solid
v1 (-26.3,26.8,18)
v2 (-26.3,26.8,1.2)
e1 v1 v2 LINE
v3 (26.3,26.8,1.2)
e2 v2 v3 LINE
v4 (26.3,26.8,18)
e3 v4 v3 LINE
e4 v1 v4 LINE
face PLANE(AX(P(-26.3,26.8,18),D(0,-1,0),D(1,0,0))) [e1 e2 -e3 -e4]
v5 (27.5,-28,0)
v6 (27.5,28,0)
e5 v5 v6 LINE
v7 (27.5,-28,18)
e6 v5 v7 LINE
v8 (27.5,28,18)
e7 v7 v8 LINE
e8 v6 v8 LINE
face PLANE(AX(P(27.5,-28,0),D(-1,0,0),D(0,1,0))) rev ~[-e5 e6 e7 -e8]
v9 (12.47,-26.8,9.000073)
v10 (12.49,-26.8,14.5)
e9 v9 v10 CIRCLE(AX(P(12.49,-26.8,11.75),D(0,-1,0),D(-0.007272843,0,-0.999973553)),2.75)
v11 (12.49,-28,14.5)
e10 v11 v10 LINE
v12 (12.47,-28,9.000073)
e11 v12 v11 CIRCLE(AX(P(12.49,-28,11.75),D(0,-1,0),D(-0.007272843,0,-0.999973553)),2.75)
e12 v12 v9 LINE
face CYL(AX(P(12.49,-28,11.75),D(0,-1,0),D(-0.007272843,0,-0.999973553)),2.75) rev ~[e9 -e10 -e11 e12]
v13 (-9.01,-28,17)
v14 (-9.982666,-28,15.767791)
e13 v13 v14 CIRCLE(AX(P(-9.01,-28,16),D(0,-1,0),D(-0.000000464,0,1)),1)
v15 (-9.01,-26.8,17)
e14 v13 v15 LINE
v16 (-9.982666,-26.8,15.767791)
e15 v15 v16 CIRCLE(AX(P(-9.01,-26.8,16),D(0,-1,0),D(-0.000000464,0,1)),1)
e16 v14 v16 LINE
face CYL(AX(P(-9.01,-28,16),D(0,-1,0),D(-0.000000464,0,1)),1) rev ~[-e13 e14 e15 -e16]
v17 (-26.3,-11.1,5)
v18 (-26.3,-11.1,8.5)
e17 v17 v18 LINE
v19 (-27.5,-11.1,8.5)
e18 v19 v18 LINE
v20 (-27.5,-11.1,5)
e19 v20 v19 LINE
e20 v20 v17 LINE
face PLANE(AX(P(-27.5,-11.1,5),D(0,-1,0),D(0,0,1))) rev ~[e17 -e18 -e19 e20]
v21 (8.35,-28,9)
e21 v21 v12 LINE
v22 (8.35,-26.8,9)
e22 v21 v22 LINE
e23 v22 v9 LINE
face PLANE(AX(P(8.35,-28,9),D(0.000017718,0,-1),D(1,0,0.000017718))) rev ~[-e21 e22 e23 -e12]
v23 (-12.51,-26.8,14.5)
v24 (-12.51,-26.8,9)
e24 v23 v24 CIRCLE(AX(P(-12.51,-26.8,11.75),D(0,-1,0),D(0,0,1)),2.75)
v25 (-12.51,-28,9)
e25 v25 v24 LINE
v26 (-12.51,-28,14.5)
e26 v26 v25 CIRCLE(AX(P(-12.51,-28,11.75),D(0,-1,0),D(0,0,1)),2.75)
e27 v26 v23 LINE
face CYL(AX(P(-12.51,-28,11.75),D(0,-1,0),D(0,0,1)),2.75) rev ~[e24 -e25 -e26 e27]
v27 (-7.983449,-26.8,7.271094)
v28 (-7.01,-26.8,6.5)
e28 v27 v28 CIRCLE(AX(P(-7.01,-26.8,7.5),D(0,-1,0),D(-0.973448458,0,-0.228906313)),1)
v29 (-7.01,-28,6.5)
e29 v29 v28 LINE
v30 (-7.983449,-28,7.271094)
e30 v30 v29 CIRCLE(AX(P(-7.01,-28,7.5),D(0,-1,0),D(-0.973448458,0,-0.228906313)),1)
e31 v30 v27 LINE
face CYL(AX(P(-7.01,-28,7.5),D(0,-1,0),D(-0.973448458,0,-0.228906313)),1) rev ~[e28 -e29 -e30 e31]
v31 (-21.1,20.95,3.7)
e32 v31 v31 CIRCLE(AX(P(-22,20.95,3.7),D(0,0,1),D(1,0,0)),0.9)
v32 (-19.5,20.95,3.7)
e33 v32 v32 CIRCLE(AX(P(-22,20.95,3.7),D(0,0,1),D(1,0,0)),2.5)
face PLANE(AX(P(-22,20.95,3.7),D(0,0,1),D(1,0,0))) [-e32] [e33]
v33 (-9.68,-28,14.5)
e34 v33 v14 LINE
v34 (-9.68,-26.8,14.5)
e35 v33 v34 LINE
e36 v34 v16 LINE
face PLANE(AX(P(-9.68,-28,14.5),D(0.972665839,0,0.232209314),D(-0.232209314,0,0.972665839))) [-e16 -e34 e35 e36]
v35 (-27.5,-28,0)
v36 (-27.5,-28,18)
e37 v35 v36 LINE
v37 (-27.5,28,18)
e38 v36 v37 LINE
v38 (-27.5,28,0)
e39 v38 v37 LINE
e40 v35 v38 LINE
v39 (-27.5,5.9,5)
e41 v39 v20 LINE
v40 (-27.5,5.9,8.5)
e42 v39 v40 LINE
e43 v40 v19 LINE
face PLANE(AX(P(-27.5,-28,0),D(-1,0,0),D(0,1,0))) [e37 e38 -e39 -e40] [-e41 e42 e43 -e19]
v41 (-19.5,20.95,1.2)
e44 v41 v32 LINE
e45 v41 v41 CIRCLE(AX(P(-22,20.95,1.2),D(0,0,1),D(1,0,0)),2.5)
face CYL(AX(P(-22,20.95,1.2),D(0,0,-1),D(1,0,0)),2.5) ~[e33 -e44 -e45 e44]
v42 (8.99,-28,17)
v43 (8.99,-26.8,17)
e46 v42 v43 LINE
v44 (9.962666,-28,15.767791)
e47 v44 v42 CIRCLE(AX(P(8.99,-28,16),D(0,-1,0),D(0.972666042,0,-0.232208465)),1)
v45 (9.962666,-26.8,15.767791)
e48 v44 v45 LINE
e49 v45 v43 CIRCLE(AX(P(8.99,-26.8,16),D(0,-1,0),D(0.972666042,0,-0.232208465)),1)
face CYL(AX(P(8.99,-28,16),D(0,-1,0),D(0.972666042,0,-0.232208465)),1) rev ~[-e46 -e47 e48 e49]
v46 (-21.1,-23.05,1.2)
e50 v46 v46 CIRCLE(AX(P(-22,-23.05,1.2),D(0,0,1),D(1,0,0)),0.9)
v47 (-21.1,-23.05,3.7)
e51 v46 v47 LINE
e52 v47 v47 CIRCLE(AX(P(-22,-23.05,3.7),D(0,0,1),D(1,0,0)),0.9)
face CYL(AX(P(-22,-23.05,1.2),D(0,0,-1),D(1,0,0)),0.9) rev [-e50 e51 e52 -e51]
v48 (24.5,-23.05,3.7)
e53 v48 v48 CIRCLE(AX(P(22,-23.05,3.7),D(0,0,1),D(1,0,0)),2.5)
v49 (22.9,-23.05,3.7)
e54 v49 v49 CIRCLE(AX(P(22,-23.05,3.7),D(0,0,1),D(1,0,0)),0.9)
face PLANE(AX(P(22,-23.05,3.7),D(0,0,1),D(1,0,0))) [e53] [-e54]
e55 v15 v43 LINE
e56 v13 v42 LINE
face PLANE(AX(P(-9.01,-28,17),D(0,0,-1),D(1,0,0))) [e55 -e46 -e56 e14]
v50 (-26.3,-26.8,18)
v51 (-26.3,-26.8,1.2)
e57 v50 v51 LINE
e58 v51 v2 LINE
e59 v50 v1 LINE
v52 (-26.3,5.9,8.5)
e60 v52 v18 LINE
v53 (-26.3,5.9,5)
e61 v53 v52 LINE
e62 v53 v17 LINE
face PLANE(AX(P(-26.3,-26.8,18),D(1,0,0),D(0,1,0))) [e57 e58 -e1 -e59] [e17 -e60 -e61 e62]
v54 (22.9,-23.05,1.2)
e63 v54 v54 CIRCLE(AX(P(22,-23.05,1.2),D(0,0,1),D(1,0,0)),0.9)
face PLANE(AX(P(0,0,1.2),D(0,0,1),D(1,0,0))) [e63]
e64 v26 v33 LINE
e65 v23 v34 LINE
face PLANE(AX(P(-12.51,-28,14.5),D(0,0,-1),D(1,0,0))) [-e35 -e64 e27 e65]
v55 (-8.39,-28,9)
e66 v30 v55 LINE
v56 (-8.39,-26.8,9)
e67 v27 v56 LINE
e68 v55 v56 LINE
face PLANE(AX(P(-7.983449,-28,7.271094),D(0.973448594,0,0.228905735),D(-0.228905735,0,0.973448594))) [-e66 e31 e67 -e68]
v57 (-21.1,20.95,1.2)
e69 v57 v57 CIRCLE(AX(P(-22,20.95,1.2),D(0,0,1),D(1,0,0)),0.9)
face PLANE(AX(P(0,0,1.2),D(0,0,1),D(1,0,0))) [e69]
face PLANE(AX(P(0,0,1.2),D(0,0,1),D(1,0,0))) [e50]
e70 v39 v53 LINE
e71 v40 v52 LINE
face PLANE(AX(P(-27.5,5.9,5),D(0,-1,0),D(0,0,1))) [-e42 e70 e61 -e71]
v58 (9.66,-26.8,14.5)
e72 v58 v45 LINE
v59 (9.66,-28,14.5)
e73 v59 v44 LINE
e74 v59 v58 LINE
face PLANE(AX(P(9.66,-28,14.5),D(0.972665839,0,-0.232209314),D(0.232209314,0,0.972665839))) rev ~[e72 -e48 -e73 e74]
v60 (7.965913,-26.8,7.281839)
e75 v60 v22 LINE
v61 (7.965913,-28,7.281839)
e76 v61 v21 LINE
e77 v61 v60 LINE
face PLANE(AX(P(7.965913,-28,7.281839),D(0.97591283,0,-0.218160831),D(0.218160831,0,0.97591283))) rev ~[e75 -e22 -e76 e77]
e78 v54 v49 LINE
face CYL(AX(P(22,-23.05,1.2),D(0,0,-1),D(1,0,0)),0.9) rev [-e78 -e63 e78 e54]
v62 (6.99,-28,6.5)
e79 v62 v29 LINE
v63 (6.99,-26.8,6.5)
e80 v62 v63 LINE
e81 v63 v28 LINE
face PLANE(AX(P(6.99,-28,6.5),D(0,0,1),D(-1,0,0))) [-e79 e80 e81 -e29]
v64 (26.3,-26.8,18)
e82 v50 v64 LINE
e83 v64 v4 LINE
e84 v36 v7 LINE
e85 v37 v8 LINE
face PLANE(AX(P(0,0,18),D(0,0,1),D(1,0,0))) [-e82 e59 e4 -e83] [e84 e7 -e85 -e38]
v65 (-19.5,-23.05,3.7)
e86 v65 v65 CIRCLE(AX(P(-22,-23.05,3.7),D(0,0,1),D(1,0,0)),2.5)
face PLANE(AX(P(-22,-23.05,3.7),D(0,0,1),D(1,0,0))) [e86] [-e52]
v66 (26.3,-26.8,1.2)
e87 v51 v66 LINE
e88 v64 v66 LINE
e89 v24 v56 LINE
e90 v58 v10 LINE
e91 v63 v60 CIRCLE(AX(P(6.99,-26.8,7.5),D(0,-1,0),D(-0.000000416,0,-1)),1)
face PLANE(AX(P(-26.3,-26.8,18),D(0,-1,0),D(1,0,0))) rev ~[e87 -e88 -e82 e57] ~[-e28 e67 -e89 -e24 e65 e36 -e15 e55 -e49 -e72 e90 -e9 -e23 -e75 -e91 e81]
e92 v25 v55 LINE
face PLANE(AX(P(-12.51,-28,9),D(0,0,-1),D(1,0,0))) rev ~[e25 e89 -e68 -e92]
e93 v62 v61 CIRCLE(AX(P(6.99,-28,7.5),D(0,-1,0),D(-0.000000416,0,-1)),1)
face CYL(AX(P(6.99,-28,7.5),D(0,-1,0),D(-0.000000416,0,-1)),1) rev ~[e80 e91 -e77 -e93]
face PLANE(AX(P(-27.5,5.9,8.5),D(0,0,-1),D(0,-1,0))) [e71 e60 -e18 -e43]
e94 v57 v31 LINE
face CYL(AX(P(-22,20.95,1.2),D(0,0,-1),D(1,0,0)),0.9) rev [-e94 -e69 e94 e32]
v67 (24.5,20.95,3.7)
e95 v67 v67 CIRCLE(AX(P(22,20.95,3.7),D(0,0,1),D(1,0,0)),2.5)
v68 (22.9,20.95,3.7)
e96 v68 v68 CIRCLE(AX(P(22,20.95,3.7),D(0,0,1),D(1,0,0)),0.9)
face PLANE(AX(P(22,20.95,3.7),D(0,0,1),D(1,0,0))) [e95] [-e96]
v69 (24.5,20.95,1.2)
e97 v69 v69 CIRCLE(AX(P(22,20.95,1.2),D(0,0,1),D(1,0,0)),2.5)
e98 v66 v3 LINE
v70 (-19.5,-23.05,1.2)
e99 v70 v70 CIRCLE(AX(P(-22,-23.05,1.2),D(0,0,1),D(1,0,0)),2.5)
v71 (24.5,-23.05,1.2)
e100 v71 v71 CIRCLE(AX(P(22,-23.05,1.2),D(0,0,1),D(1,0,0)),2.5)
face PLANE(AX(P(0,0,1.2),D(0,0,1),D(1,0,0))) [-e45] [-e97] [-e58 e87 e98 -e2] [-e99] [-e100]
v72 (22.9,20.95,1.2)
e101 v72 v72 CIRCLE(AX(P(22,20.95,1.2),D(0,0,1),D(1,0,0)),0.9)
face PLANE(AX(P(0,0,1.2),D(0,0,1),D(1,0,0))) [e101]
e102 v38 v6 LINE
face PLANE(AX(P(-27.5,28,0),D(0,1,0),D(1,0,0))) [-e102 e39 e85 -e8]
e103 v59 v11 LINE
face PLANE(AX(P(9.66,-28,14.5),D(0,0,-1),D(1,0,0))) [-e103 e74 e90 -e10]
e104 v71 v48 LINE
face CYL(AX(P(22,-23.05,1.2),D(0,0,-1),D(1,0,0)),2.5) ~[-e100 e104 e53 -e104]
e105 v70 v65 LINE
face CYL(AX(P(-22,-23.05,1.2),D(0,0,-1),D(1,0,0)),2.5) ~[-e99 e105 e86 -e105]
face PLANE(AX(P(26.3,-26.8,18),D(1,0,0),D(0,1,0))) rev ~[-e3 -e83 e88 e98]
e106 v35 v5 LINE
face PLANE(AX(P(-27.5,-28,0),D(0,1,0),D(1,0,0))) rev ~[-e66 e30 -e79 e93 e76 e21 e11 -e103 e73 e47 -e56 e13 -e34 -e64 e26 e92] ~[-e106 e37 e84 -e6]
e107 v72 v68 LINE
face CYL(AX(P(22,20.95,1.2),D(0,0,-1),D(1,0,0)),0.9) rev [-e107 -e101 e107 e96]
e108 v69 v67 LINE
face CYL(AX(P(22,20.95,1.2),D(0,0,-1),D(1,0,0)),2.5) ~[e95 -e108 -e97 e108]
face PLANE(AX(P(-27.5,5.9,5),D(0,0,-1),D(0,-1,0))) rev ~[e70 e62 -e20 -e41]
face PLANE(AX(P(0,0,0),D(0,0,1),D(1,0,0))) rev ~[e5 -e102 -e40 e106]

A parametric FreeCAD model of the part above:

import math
import FreeCAD as App
import Part
import Sketcher
from FreeCAD import Vector
Q = App.Units.Quantity


def add_polygon(sketch, points):
    """Adds a closed chain of lines whose ends are joined by coincident constraints."""
    first, n = sketch.GeometryCount, len(points)
    for a, b in zip(points, points[1:] + points[:1]):
        sketch.addGeometry(Part.LineSegment(App.Vector(*a, 0), App.Vector(*b, 0)), False)
    for i in range(n):
        sketch.addConstraint(Sketcher.Constraint("Coincident", first + i, 2, first + (i + 1) % n, 1))

doc = App.newDocument("Part")
params = doc.addObject("Spreadsheet::Sheet", "Params")
for row, (alias, value) in enumerate([
    ("sketch1_width", "55 mm"),
    ("sketch1_height", "56 mm"),
    ("pad1_length", "18 mm"),
    ("sketch2_width", "52.6 mm"),
    ("sketch2_height", "53.6 mm"),
    ("pocket1_length", "16.8 mm"),
    ("sketch3_radius", "1 mm"),
    ("sketch3_width", "18 mm"),
    ("sketch3_width2", "14 mm"),
    ("sketch3_radius2", "2.75 mm"),
    ("sketch3_width3", "2.83 mm"),
    ("pocket2_length", "1.2 mm"),
    ("sketch4_width", "17 mm"),
    ("sketch4_height", "3.5 mm"),
    ("pocket3_length", "1.2 mm"),
    ("sketch5_diameter", "5 mm"),
    ("sketch5_diameter2", "1.8 mm"),
    ("pad2_length", "2.5 mm"),
], start=1):
    params.set(f"A{row}", alias)
    params.set(f"B{row}", "=" + value)
    params.setAlias(f"B{row}", alias)

body = doc.addObject("PartDesign::Body", "Body")

# Sketch on XY plane
sketch1 = doc.addObject("Sketcher::SketchObject", "Sketch")
body.addObject(sketch1)
sketch1.AttachmentSupport = (doc.XY_Plane, [""])
sketch1.MapMode = "FlatFace"
add_polygon(sketch1, [(-28, 28), (-28, -28), (28, -28), (28, 28)])  # lines 0-3
sketch1.addConstraint([
    Sketcher.Constraint("Vertical", 0),
    Sketcher.Constraint("Horizontal", 1),
    Sketcher.Constraint("Vertical", 2),
    Sketcher.Constraint("Horizontal", 3),
    Sketcher.Constraint("Symmetric", 0, 2, 2, 2, -1, 1),
    Sketcher.Constraint("DistanceX", 1, 1, 1, 2, Q("55 mm")),
    Sketcher.Constraint("DistanceY", 0, 2, 0, 1, Q("56 mm")),
])
sketch1.setExpression("Constraints[9]", "Params.sketch1_width")
sketch1.setExpression("Constraints[10]", "Params.sketch1_height")
pad1 = doc.addObject("PartDesign::Pad", "Pad")
body.addObject(pad1)
pad1.Profile = sketch1
pad1.setExpression("Length", "Params.pad1_length")

# Sketch on XY plane
sketch2 = doc.addObject("Sketcher::SketchObject", "Sketch001")
body.addObject(sketch2)
sketch2.AttachmentSupport = (doc.XY_Plane, [""])
sketch2.MapMode = "FlatFace"
sketch2.AttachmentOffset = App.Placement(Vector(0, 0, 18), App.Rotation())
add_polygon(sketch2, [(-26, 27), (-26, -27), (26, -27), (26, 27)])  # lines 0-3
sketch2.addConstraint([
    Sketcher.Constraint("Vertical", 0),
    Sketcher.Constraint("Horizontal", 1),
    Sketcher.Constraint("Vertical", 2),
    Sketcher.Constraint("Horizontal", 3),
    Sketcher.Constraint("Symmetric", 0, 2, 2, 2, -1, 1),
    Sketcher.Constraint("DistanceX", 1, 1, 1, 2, Q("52.6 mm")),
    Sketcher.Constraint("DistanceY", 0, 2, 0, 1, Q("53.6 mm")),
])
sketch2.setExpression("Constraints[9]", "Params.sketch2_width")
sketch2.setExpression("Constraints[10]", "Params.sketch2_height")
pocket1 = doc.addObject("PartDesign::Pocket", "Pocket")
body.addObject(pocket1)
pocket1.Profile = sketch2
pocket1.setExpression("Length", "Params.pocket1_length")

# Sketch on XZ plane
sketch3 = doc.addObject("Sketcher::SketchObject", "Sketch002")
body.addObject(sketch3)
sketch3.AttachmentSupport = (doc.XZ_Plane, [""])
sketch3.MapMode = "FlatFace"
sketch3.AttachmentOffset = App.Placement(Vector(0, 0, 28), App.Rotation())
sketch3.addGeometry([
    Part.ArcOfCircle(Part.Circle(Vector(12.5, 11.8, 0), Vector(0, 0, 1), 2.7), math.radians(-90), math.radians(90)),  # 0
    Part.LineSegment(Vector(12.5, 14.5, 0), Vector(9.7, 14.5, 0)),  # 1
    Part.LineSegment(Vector(9.7, 14.5, 0), Vector(10, 15.8, 0)),  # 2
    Part.ArcOfCircle(Part.Circle(Vector(9, 16, 0), Vector(0, 0, 1), 1), math.radians(-13), math.radians(90)),  # 3
    Part.LineSegment(Vector(9, 17, 0), Vector(-9, 17, 0)),  # 4
    Part.ArcOfCircle(Part.Circle(Vector(-9, 16, 0), Vector(0, 0, 1), 1), math.radians(90), math.radians(193)),  # 5
    Part.LineSegment(Vector(-10, 15.8, 0), Vector(-9.7, 14.5, 0)),  # 6
    Part.LineSegment(Vector(-9.7, 14.5, 0), Vector(-12.5, 14.5, 0)),  # 7
    Part.ArcOfCircle(Part.Circle(Vector(-12.5, 11.8, 0), Vector(0, 0, 1), 2.8), math.radians(90), math.radians(270)),  # 8
    Part.LineSegment(Vector(-12.5, 9, 0), Vector(-8.4, 9, 0)),  # 9
    Part.LineSegment(Vector(-8.4, 9, 0), Vector(-8, 7.3, 0)),  # 10
    Part.ArcOfCircle(Part.Circle(Vector(-7, 7.5, 0), Vector(0, 0, 1), 1), math.radians(-167), math.radians(-90)),  # 11
    Part.LineSegment(Vector(-7, 6.5, 0), Vector(7, 6.5, 0)),  # 12
    Part.ArcOfCircle(Part.Circle(Vector(7, 7.5, 0), Vector(0, 0, 1), 1), math.radians(-90), math.radians(-13)),  # 13
    Part.LineSegment(Vector(8, 7.3, 0), Vector(8.3, 9, 0)),  # 14
    Part.LineSegment(Vector(8.3, 9, 0), Vector(12.5, 9, 0)),  # 15
], False)
sketch3.addConstraint([
    Sketcher.Constraint("Tangent", 0, 2, 1, 1),
    Sketcher.Constraint("Coincident", 1, 2, 2, 1),
    Sketcher.Constraint("Tangent", 2, 2, 3, 1),
    Sketcher.Constraint("Tangent", 3, 2, 4, 1),
    Sketcher.Constraint("Tangent", 4, 2, 5, 1),
    Sketcher.Constraint("Tangent", 5, 2, 6, 1),
    Sketcher.Constraint("Coincident", 6, 2, 7, 1),
    Sketcher.Constraint("Tangent", 7, 2, 8, 1),
    Sketcher.Constraint("Tangent", 8, 2, 9, 1),
    Sketcher.Constraint("Coincident", 9, 2, 10, 1),
    Sketcher.Constraint("Tangent", 10, 2, 11, 1),
    Sketcher.Constraint("Tangent", 11, 2, 12, 1),
    Sketcher.Constraint("Tangent", 12, 2, 13, 1),
    Sketcher.Constraint("Tangent", 13, 2, 14, 1),
    Sketcher.Constraint("Coincident", 14, 2, 15, 1),
    Sketcher.Constraint("Coincident", 15, 2, 0, 1),
    Sketcher.Constraint("Horizontal", 1),
    Sketcher.Constraint("Horizontal", 4),
    Sketcher.Constraint("Horizontal", 7),
    Sketcher.Constraint("Horizontal", 9),
    Sketcher.Constraint("Horizontal", 12),
    Sketcher.Constraint("Equal", 3, 5),
    Sketcher.Constraint("Equal", 0, 8),
    Sketcher.Constraint("Equal", 5, 11),
    Sketcher.Constraint("Equal", 11, 13),
    Sketcher.Constraint("Horizontal", 0, 3, 8, 3),
    Sketcher.Constraint("Horizontal", 2, 2, 5, 2),
    Sketcher.Constraint("Horizontal", 9, 2, 14, 2),
    Sketcher.Constraint("Equal", 1, 7),
    Sketcher.Constraint("Radius", 3, Q("1 mm")),
    Sketcher.Constraint("DistanceX", 4, 2, 4, 1, Q("18 mm")),
    Sketcher.Constraint("DistanceX", 12, 1, 12, 2, Q("14 mm")),
    Sketcher.Constraint("Radius", 0, Q("2.75 mm")),
    Sketcher.Constraint("DistanceY", -1, 1, 3, 3, Q("16 mm")),
    Sketcher.Constraint("DistanceY", -1, 1, 8, 2, Q("9 mm")),
    Sketcher.Constraint("DistanceX", 8, 3, 0, 3, Q("25 mm")),
    Sketcher.Constraint("DistanceX", 5, 3, 11, 3, Q("1.999999 mm")),
    Sketcher.Constraint("DistanceY", 13, 3, 0, 2, Q("7 mm")),
    Sketcher.Constraint("DistanceX", 1, 2, 1, 1, Q("2.83 mm")),
    Sketcher.Constraint("DistanceX", 9, 1, 9, 2, Q("4.12 mm")),
    Sketcher.Constraint("Distance", 15, Q("4.12 mm")),
    Sketcher.Constraint("DistanceX", -1, 1, 0, 3, Q("12.49 mm")),
    Sketcher.Constraint("DistanceX", -1, 1, 14, 2, Q("8.35 mm")),
])
sketch3.setExpression("Constraints[29]", "Params.sketch3_radius")
sketch3.setExpression("Constraints[30]", "Params.sketch3_width")
sketch3.setExpression("Constraints[31]", "Params.sketch3_width2")
sketch3.setExpression("Constraints[32]", "Params.sketch3_radius2")
sketch3.setExpression("Constraints[38]", "Params.sketch3_width3")
pocket2 = doc.addObject("PartDesign::Pocket", "Pocket001")
body.addObject(pocket2)
pocket2.Profile = sketch3
pocket2.setExpression("Length", "Params.pocket2_length")

# Sketch on YZ plane
sketch4 = doc.addObject("Sketcher::SketchObject", "Sketch003")
body.addObject(sketch4)
sketch4.AttachmentSupport = (doc.YZ_Plane, [""])
sketch4.MapMode = "FlatFace"
sketch4.AttachmentOffset = App.Placement(Vector(0, 0, -27.5), App.Rotation())
add_polygon(sketch4, [(5.9, 8.5), (5.9, 5), (-11.1, 5), (-11.1, 8.5)])  # lines 0-3
sketch4.addConstraint([
    Sketcher.Constraint("Vertical", 0),
    Sketcher.Constraint("Horizontal", 1),
    Sketcher.Constraint("Vertical", 2),
    Sketcher.Constraint("Horizontal", 3),
    Sketcher.Constraint("DistanceX", 1, 2, 1, 1, Q("17 mm")),
    Sketcher.Constraint("DistanceY", 0, 2, 0, 1, Q("3.5 mm")),
    Sketcher.Constraint("DistanceY", -1, 1, 0, 2, Q("5 mm")),
    Sketcher.Constraint("DistanceX", -1, 1, 0, 2, Q("5.9 mm")),
])
sketch4.setExpression("Constraints[8]", "Params.sketch4_width")
sketch4.setExpression("Constraints[9]", "Params.sketch4_height")
pocket3 = doc.addObject("PartDesign::Pocket", "Pocket002")
body.addObject(pocket3)
pocket3.Profile = sketch4
pocket3.setExpression("Length", "Params.pocket3_length")
pocket3.Reversed = True

# Sketch on XY plane
sketch5 = doc.addObject("Sketcher::SketchObject", "Sketch004")
body.addObject(sketch5)
sketch5.AttachmentSupport = (doc.XY_Plane, [""])
sketch5.MapMode = "FlatFace"
sketch5.AttachmentOffset = App.Placement(Vector(0, 0, 1.2), App.Rotation())
sketch5.addGeometry([
    Part.Circle(Vector(22, -23.1, 0), Vector(0, 0, 1), 2.5),  # 0
    Part.Circle(Vector(22, -23.1, 0), Vector(0, 0, 1), 0.9),  # 1
    Part.Circle(Vector(-22, -23.1, 0), Vector(0, 0, 1), 2.5),  # 2
    Part.Circle(Vector(-22, -23.1, 0), Vector(0, 0, 1), 0.9),  # 3
    Part.Circle(Vector(22, 20.9, 0), Vector(0, 0, 1), 2.5),  # 4
    Part.Circle(Vector(22, 20.9, 0), Vector(0, 0, 1), 0.9),  # 5
    Part.Circle(Vector(-22, 20.9, 0), Vector(0, 0, 1), 2.5),  # 6
    Part.Circle(Vector(-22, 20.9, 0), Vector(0, 0, 1), 0.9),  # 7
], False)
sketch5.addConstraint([
    Sketcher.Constraint("Coincident", 1, 3, 0, 3),
    Sketcher.Constraint("Coincident", 3, 3, 2, 3),
    Sketcher.Constraint("Coincident", 5, 3, 4, 3),
    Sketcher.Constraint("Coincident", 7, 3, 6, 3),
    Sketcher.Constraint("Equal", 0, 2),
    Sketcher.Constraint("Equal", 1, 3),
    Sketcher.Constraint("Equal", 2, 4),
    Sketcher.Constraint("Equal", 3, 5),
    Sketcher.Constraint("Equal", 4, 6),
    Sketcher.Constraint("Equal", 5, 7),
    Sketcher.Constraint("Symmetric", 0, 3, 2, 3, -2),
    Sketcher.Constraint("Symmetric", 4, 3, 6, 3, -2),
    Sketcher.Constraint("Vertical", 1, 3, 4, 3),
    Sketcher.Constraint("Diameter", 0, Q("5 mm")),
    Sketcher.Constraint("Diameter", 1, Q("1.8 mm")),
    Sketcher.Constraint("DistanceX", -1, 1, 0, 3, Q("22 mm")),
    Sketcher.Constraint("DistanceY", 0, 3, 4, 3, Q("44 mm")),
    Sketcher.Constraint("DistanceY", 0, 3, -1, 1, Q("23.05 mm")),
])
sketch5.setExpression("Constraints[13]", "Params.sketch5_diameter")
sketch5.setExpression("Constraints[14]", "Params.sketch5_diameter2")
pad2 = doc.addObject("PartDesign::Pad", "Pad001")
body.addObject(pad2)
pad2.Profile = sketch5
pad2.setExpression("Length", "Params.pad2_length")

doc.recompute()
